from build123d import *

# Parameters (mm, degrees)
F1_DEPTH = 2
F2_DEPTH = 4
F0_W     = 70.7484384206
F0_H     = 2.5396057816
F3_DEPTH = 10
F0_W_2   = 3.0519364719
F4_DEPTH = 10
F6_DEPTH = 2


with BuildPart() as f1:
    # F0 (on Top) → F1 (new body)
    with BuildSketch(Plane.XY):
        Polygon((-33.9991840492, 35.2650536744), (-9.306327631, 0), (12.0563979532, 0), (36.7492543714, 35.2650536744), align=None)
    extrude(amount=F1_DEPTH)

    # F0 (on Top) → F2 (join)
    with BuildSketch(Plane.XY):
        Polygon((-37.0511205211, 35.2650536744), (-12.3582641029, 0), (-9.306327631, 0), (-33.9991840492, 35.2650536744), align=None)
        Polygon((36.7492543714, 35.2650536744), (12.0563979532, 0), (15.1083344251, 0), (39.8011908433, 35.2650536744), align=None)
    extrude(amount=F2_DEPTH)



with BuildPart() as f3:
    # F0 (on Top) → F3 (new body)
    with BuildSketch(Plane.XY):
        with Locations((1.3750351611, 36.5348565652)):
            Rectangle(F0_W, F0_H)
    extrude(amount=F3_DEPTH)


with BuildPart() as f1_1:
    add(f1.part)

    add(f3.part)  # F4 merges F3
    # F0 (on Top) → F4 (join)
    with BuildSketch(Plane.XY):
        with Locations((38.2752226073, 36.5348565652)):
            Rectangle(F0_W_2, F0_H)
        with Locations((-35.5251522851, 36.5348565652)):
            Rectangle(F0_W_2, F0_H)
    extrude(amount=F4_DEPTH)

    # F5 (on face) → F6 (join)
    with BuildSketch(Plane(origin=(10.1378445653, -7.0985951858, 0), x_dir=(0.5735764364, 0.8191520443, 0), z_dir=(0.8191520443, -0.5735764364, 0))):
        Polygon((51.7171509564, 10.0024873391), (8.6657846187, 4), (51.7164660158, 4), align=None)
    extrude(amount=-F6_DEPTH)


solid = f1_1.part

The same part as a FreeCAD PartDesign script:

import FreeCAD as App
import Part
import Sketcher
Q = App.Units.Quantity


def add_polygon(sketch, points):
    """Adds a closed chain of lines whose ends are joined by coincident constraints."""
    first, n = sketch.GeometryCount, len(points)
    for a, b in zip(points, points[1:] + points[:1]):
        sketch.addGeometry(Part.LineSegment(App.Vector(*a, 0), App.Vector(*b, 0)), False)
    for i in range(n):
        sketch.addConstraint(Sketcher.Constraint("Coincident", first + i, 2, first + (i + 1) % n, 1))

doc = App.newDocument("Part")
body = doc.addObject("PartDesign::Body", "Body")

sketch1 = body.newObject("Sketcher::SketchObject", "Sketch")
sketch1.AttachmentSupport = (doc.getObject("XY_Plane"), [""])
sketch1.MapMode = "FlatFace"
add_polygon(sketch1, [(-34, 35), (-9, 0), (12, 0), (37, 35)])
sketch1.addConstraint(Sketcher.Constraint("Horizontal", 1))
sketch1.addConstraint(Sketcher.Constraint("Horizontal", 3))
sketch1.addConstraint(Sketcher.Constraint("PointOnObject", 0, 2, -1))
sketch1.addConstraint(Sketcher.Constraint("Equal", 0, 2))
sketch1.addConstraint(Sketcher.Constraint("Angle", 0, Q("-55 deg")))
sketch1.addConstraint(Sketcher.Constraint("DistanceX", 3, 2, 3, 1, Q("70.748438 mm")))
sketch1.addConstraint(Sketcher.Constraint("Distance", 0, Q("43.050681 mm")))
sketch1.addConstraint(Sketcher.Constraint("DistanceX", 0, 2, -1, 1, Q("9.306328 mm")))
pad1 = body.newObject("PartDesign::Pad", "Pad")
pad1.Profile = sketch1
pad1.Length = 2

sketch2 = body.newObject("Sketcher::SketchObject", "Sketch001")
sketch2.AttachmentSupport = (doc.getObject("XY_Plane"), [""])
sketch2.MapMode = "FlatFace"
add_polygon(sketch2, [(-37.1, 35.3), (-12.4, 0), (-9.3, 0), (-34, 35.3)])
add_polygon(sketch2, [(36.7, 35.3), (12.1, 0), (15.1, 0), (39.8, 35.3)])
sketch2.addConstraint(Sketcher.Constraint("Horizontal", 1))
sketch2.addConstraint(Sketcher.Constraint("Horizontal", 3))
sketch2.addConstraint(Sketcher.Constraint("Horizontal", 5))
sketch2.addConstraint(Sketcher.Constraint("Horizontal", 7))
sketch2.addConstraint(Sketcher.Constraint("PointOnObject", 0, 2, -1))
sketch2.addConstraint(Sketcher.Constraint("PointOnObject", 4, 2, -1))
sketch2.addConstraint(Sketcher.Constraint("Parallel", 0, 2))
sketch2.addConstraint(Sketcher.Constraint("Parallel", 4, 6))
sketch2.addConstraint(Sketcher.Constraint("Horizontal", 3, 2, 6, 2))
sketch2.addConstraint(Sketcher.Constraint("Equal", 3, 5))
sketch2.addConstraint(Sketcher.Constraint("Equal", 2, 4))
sketch2.addConstraint(Sketcher.Constraint("Angle", 0, Q("-55 deg")))
sketch2.addConstraint(Sketcher.Constraint("DistanceX", 0, 2, 5, 2, Q("27.466599 mm")))
sketch2.addConstraint(Sketcher.Constraint("Distance", 0, Q("43.050681 mm")))
sketch2.addConstraint(Sketcher.Constraint("DistanceX", 1, 1, 1, 2, Q("3.051936 mm")))
sketch2.addConstraint(Sketcher.Constraint("DistanceX", 3, 2, -1, 1, Q("37.051121 mm")))
pad2 = body.newObject("PartDesign::Pad", "Pad001")
pad2.Profile = sketch2
pad2.Length = 4
body2 = doc.addObject("PartDesign::Body", "Body001")

sketch3 = body2.newObject("Sketcher::SketchObject", "Sketch002")
sketch3.AttachmentSupport = (doc.getObject("XY_Plane001"), [""])
sketch3.MapMode = "FlatFace"
add_polygon(sketch3, [(-34, 37.8), (-34, 35.3), (36.7, 35.3), (36.7, 37.8)])
sketch3.addConstraint(Sketcher.Constraint("Vertical", 0))
sketch3.addConstraint(Sketcher.Constraint("Horizontal", 1))
sketch3.addConstraint(Sketcher.Constraint("Vertical", 2))
sketch3.addConstraint(Sketcher.Constraint("Horizontal", 3))
sketch3.addConstraint(Sketcher.Constraint("DistanceX", 1, 1, 1, 2, Q("70.748438 mm")))
sketch3.addConstraint(Sketcher.Constraint("DistanceY", 0, 2, 0, 1, Q("2.539606 mm")))
sketch3.addConstraint(Sketcher.Constraint("DistanceY", -1, 1, 2, 2, Q("37.804659 mm")))
sketch3.addConstraint(Sketcher.Constraint("DistanceX", 0, 2, -1, 1, Q("33.999184 mm")))
pad3 = body2.newObject("PartDesign::Pad", "Pad002")
pad3.Profile = sketch3
pad3.Length = 10
doc.recompute()

boolean = body.newObject("PartDesign::Boolean", "Boolean")
boolean.Type = "Fuse"
boolean.addObjects([body2])

sketch4 = body.newObject("Sketcher::SketchObject", "Sketch003")
sketch4.AttachmentSupport = (doc.getObject("XY_Plane"), [""])
sketch4.MapMode = "FlatFace"
add_polygon(sketch4, [(36.7, 37.8), (36.7, 35.3), (39.8, 35.3), (39.8, 37.8)])
add_polygon(sketch4, [(-37.1, 37.8), (-37.1, 35.3), (-34, 35.3), (-34, 37.8)])
sketch4.addConstraint(Sketcher.Constraint("Vertical", 0))
sketch4.addConstraint(Sketcher.Constraint("Horizontal", 1))
sketch4.addConstraint(Sketcher.Constraint("Vertical", 2))
sketch4.addConstraint(Sketcher.Constraint("Horizontal", 3))
sketch4.addConstraint(Sketcher.Constraint("Vertical", 4))
sketch4.addConstraint(Sketcher.Constraint("Horizontal", 5))
sketch4.addConstraint(Sketcher.Constraint("Vertical", 6))
sketch4.addConstraint(Sketcher.Constraint("Horizontal", 7))
sketch4.addConstraint(Sketcher.Constraint("Horizontal", 1, 2, 4, 2))
sketch4.addConstraint(Sketcher.Constraint("Horizontal", 3, 2, 6, 2))
sketch4.addConstraint(Sketcher.Constraint("Equal", 3, 5))
sketch4.addConstraint(Sketcher.Constraint("DistanceX", 1, 1, 1, 2, Q("3.051936 mm")))
sketch4.addConstraint(Sketcher.Constraint("DistanceY", 0, 2, 0, 1, Q("2.539606 mm")))
sketch4.addConstraint(Sketcher.Constraint("DistanceX", -1, 1, 1, 2, Q("39.801191 mm")))
sketch4.addConstraint(Sketcher.Constraint("DistanceY", -1, 1, 2, 2, Q("37.804659 mm")))
sketch4.addConstraint(Sketcher.Constraint("DistanceX", 4, 2, -1, 1, Q("37.051121 mm")))
pad4 = body.newObject("PartDesign::Pad", "Pad003")
pad4.Profile = sketch4
pad4.Length = 10

sketch5 = body.newObject("Sketcher::SketchObject", "Sketch004")
sketch5.Placement = App.Placement(App.Vector(10.137845, -7.098595, 0), App.Rotation(App.Vector(0.573576436, 0.819152044, 0), App.Vector(0, 0, 0.999999999), App.Vector(0.819152044, -0.573576436, 0), "ZXY"))
add_polygon(sketch5, [(52, 10), (9, 4), (52, 4)])
sketch5.addConstraint(Sketcher.Constraint("Horizontal", 1))
sketch5.addConstraint(Sketcher.Constraint("DistanceY", -1, 1, 0, 2, Q("4 mm")))
sketch5.addConstraint(Sketcher.Constraint("DistanceX", 1, 1, 1, 2, Q("43.050681 mm")))
sketch5.addConstraint(Sketcher.Constraint("DistanceX", -1, 1, 2, 2, Q("51.717151 mm")))
sketch5.addConstraint(Sketcher.Constraint("Distance", 0, Q("43.467804 mm")))
sketch5.addConstraint(Sketcher.Constraint("Distance", 2, Q("6.002487 mm")))
pad5 = body.newObject("PartDesign::Pad", "Pad004")
pad5.Profile = sketch5
pad5.Length = 2
pad5.Reversed = True

doc.recompute()
